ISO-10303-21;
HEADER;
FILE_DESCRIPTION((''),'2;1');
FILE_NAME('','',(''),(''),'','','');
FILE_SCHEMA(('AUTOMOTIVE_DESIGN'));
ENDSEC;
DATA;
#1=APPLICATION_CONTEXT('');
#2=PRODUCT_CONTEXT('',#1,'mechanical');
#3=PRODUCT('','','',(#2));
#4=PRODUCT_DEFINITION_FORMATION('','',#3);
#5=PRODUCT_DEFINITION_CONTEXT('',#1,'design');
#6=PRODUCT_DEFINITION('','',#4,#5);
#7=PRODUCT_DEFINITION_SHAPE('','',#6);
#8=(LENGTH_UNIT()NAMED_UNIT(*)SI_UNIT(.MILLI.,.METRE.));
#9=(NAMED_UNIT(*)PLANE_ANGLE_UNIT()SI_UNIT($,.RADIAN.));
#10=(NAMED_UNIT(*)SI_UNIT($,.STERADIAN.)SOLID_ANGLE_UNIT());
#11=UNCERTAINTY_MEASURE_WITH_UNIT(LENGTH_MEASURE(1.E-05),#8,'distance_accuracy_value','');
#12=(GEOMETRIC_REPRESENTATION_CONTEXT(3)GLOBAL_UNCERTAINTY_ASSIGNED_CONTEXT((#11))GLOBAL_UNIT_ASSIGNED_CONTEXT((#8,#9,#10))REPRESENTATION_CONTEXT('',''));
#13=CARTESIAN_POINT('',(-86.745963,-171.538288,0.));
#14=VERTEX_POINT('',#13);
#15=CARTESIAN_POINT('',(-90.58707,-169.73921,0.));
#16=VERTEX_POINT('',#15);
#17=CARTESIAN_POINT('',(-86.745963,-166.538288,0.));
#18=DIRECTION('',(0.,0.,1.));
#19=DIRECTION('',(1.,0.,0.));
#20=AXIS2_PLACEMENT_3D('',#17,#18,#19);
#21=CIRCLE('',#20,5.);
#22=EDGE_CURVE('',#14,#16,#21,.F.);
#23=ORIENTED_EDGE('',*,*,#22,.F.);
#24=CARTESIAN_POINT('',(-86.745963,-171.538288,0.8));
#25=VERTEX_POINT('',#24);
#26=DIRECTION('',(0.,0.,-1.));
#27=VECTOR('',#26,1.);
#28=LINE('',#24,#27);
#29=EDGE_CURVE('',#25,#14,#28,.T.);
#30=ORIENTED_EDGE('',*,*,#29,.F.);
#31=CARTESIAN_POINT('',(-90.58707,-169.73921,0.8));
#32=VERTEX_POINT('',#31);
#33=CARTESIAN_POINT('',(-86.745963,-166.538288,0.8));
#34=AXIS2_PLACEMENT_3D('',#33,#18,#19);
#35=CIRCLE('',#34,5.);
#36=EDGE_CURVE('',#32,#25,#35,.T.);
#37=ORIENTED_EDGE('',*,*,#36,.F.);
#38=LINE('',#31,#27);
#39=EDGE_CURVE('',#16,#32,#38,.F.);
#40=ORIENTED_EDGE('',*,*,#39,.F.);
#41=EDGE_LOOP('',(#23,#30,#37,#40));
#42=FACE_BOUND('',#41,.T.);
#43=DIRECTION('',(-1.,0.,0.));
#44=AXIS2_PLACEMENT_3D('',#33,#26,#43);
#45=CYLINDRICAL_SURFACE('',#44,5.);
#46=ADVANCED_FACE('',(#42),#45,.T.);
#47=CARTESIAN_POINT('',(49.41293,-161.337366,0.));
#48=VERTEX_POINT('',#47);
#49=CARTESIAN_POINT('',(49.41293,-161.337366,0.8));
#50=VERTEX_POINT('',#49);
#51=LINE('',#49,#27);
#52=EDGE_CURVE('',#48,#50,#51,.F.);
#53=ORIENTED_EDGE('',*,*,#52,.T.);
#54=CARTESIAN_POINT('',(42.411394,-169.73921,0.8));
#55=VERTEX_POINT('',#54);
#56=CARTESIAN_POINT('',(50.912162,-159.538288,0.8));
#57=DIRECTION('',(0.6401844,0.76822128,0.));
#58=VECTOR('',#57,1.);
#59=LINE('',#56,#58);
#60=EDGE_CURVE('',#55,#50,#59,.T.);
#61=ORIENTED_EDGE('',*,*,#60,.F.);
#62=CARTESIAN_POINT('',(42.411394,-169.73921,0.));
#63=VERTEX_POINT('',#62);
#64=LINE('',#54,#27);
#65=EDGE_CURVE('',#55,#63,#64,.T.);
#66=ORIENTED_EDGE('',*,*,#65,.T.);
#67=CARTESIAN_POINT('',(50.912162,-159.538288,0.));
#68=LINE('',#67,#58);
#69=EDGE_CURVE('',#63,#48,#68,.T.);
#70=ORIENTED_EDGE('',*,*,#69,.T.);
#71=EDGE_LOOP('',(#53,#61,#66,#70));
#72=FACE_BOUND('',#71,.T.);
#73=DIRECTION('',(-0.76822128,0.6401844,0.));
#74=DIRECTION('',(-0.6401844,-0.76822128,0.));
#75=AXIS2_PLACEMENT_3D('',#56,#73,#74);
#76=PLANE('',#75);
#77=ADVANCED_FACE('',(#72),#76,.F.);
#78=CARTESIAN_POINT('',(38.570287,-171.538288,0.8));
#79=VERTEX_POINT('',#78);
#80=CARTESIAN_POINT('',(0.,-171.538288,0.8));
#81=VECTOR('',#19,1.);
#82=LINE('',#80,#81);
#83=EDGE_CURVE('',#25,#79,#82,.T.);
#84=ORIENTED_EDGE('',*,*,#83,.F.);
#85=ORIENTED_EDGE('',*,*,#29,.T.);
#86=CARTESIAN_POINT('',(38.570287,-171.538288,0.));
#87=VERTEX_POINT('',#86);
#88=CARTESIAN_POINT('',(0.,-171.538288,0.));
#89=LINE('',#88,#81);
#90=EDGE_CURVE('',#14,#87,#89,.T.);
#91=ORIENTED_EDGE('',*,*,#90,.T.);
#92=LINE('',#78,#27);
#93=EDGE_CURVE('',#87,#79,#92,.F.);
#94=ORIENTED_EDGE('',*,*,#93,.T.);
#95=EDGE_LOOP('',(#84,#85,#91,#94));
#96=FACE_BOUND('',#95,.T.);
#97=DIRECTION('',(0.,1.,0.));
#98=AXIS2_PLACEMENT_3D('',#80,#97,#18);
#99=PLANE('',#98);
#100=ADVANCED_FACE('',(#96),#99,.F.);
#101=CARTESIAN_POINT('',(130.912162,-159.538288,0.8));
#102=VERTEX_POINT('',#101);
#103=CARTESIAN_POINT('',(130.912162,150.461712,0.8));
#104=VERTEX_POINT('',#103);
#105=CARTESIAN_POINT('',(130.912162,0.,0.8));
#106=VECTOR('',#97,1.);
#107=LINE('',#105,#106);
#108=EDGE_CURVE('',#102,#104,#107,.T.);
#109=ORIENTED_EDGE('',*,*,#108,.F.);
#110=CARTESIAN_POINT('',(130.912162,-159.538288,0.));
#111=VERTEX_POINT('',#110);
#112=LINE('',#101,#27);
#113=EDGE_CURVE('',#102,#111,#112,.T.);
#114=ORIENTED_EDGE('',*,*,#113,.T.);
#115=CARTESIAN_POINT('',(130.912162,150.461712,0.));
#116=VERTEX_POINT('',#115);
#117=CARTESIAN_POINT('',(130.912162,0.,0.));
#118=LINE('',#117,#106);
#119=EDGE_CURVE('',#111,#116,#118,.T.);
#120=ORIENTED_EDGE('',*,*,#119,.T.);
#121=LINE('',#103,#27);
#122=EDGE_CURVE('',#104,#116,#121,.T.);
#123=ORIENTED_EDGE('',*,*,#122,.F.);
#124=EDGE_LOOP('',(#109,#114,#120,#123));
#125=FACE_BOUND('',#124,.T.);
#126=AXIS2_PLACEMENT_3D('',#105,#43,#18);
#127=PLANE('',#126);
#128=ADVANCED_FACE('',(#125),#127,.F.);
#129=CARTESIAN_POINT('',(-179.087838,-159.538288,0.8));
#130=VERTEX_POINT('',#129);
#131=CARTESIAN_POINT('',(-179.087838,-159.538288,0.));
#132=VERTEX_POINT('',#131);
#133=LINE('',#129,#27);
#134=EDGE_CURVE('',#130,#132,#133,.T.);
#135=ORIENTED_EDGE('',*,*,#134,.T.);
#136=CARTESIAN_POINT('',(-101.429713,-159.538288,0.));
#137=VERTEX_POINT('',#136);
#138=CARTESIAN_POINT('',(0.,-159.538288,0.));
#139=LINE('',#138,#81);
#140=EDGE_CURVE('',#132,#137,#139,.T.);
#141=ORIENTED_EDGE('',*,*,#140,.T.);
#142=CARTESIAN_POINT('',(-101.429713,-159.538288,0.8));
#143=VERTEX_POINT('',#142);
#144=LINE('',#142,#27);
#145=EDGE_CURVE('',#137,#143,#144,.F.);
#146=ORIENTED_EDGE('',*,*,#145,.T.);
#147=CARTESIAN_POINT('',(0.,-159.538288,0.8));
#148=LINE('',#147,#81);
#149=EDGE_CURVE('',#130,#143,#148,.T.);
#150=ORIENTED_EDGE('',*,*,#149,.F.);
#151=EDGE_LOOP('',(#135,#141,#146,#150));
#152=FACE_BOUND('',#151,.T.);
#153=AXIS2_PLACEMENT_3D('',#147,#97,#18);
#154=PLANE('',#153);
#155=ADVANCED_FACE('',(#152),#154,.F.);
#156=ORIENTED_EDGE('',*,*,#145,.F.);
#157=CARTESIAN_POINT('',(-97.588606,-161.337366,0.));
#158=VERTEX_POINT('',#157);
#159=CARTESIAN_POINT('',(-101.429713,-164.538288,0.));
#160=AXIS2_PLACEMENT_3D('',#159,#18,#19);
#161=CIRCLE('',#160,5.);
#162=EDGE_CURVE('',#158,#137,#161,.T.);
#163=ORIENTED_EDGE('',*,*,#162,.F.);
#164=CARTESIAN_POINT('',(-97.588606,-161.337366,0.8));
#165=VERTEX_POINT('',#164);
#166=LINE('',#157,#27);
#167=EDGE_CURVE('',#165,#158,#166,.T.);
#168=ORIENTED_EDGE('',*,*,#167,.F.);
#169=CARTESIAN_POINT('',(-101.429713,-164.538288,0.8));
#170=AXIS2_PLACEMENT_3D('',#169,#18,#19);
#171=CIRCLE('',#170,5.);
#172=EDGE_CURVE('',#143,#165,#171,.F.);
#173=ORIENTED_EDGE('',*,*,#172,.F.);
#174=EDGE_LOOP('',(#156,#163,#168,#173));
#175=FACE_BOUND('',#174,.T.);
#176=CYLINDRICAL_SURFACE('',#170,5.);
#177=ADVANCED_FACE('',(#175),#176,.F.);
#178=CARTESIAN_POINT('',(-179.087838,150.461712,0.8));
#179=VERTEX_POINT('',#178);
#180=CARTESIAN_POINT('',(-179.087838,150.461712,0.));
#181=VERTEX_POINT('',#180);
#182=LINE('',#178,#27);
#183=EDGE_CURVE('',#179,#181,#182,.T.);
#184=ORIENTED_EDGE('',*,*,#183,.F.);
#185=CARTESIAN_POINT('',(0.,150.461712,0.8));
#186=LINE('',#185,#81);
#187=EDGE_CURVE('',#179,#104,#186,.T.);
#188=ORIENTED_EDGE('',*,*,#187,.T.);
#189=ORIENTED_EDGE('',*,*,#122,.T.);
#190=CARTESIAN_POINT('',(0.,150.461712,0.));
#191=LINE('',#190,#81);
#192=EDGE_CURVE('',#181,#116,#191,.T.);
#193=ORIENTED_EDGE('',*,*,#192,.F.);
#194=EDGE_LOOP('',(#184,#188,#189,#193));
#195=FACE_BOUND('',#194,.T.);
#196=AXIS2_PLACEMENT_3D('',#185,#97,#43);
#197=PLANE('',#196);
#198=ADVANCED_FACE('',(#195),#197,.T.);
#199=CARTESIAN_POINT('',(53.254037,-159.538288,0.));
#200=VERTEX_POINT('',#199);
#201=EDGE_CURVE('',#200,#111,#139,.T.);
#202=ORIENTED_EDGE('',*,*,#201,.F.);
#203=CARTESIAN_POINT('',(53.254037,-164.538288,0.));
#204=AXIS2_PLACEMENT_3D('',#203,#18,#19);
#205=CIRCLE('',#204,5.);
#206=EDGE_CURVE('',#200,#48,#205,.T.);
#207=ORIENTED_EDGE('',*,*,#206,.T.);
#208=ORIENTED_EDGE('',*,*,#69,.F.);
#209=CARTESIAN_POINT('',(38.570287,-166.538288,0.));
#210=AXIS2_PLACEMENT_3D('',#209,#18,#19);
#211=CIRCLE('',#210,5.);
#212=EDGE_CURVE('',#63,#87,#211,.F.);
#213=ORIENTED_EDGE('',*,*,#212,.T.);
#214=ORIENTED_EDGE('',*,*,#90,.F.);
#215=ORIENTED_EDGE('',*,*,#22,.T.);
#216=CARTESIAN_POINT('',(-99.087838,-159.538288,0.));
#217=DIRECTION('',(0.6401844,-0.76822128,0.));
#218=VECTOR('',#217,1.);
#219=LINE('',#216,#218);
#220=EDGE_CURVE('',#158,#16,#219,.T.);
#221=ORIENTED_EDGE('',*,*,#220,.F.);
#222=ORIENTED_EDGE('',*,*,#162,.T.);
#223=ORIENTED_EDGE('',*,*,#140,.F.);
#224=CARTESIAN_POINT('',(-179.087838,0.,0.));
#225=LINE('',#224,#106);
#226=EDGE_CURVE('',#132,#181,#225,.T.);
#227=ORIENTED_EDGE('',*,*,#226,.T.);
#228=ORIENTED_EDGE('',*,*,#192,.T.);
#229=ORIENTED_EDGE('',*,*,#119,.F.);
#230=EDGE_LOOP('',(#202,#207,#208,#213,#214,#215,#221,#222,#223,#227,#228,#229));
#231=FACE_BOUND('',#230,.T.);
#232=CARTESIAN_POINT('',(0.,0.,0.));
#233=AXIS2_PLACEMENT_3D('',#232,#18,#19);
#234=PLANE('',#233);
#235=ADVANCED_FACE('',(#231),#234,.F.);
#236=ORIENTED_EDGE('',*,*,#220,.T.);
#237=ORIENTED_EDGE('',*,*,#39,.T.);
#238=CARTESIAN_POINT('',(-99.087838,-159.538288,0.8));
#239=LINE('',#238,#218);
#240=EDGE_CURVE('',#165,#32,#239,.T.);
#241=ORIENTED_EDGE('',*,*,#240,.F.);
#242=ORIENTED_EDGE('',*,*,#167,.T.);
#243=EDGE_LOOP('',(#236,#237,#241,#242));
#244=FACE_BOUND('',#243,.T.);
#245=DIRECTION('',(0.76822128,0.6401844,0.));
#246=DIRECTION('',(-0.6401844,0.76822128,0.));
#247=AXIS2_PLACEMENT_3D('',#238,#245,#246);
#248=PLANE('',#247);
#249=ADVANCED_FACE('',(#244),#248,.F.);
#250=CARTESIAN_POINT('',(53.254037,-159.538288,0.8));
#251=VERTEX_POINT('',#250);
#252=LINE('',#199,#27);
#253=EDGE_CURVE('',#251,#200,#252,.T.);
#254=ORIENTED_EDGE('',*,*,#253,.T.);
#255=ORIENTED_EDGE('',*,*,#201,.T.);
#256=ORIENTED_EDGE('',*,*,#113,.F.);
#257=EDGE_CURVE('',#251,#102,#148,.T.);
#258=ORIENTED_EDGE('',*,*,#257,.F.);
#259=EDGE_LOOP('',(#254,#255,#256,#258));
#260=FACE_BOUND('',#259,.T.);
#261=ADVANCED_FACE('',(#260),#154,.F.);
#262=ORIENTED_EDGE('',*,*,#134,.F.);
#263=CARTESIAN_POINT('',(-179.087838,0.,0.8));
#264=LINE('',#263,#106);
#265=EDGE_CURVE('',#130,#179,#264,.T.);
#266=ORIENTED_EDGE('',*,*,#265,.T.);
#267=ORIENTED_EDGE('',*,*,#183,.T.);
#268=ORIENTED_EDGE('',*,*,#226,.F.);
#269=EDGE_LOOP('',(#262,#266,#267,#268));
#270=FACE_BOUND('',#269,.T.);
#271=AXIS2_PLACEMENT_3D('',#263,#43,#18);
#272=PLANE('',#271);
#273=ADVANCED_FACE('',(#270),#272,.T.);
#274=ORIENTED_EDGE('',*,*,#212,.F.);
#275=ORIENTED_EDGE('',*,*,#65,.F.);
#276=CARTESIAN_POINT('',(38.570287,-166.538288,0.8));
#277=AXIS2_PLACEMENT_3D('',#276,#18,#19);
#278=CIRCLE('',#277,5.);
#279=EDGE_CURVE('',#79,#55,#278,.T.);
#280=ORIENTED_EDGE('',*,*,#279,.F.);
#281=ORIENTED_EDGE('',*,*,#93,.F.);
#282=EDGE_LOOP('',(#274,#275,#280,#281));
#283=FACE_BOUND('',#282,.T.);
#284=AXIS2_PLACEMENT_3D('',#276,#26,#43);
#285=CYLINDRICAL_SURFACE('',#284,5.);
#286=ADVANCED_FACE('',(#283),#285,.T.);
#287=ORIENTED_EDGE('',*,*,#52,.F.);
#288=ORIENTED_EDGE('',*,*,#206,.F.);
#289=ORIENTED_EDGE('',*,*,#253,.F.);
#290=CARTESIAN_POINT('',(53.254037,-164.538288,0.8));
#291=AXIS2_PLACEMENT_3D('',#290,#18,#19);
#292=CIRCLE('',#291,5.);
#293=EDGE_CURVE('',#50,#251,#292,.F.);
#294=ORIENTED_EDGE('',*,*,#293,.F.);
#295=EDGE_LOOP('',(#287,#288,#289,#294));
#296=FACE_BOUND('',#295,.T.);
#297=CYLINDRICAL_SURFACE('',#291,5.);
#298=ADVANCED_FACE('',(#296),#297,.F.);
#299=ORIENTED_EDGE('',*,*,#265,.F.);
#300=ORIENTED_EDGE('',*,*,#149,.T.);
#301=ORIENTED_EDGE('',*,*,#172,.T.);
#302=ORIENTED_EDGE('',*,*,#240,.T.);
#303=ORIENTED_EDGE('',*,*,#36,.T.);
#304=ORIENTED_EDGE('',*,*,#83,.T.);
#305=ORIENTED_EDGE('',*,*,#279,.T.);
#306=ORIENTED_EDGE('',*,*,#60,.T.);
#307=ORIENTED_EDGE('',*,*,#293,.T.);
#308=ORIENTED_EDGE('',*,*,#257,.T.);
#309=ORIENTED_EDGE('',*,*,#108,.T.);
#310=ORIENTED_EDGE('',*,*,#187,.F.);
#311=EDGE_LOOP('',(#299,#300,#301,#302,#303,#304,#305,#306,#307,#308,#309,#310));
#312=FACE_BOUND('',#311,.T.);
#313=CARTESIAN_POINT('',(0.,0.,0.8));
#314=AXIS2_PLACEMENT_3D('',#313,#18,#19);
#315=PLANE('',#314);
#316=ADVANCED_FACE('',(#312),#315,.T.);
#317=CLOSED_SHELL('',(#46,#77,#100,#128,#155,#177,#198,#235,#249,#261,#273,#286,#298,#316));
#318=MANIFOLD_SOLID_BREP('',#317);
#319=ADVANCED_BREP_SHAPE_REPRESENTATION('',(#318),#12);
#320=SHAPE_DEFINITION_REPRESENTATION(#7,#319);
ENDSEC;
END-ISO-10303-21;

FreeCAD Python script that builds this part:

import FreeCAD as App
import Part
import Sketcher
Q = App.Units.Quantity


def edges_at(feature, points):
    """Names of the edges that pass closest to the given points."""
    edges = feature.Shape.Edges
    near = lambda p: min(range(len(edges)), key=lambda i: edges[i].distToShape(Part.Vertex(*p))[0])
    return sorted({f"Edge{near(p) + 1}" for p in points})


def add_polygon(sketch, points):
    """Adds a closed chain of lines whose ends are joined by coincident constraints."""
    first, n = sketch.GeometryCount, len(points)
    for a, b in zip(points, points[1:] + points[:1]):
        sketch.addGeometry(Part.LineSegment(App.Vector(*a, 0), App.Vector(*b, 0)), False)
    for i in range(n):
        sketch.addConstraint(Sketcher.Constraint("Coincident", first + i, 2, first + (i + 1) % n, 1))

doc = App.newDocument("Part")
params = doc.addObject("Spreadsheet::Sheet", "Params")
for row, (alias, value) in enumerate([
    ("sketch1_width", "80 mm"),
    ("sketch1_width2", "150 mm"),
    ("sketch1_height", "12 mm"),
    ("pad1_length", "0.8 mm"),
    ("sketch2_width", "10 mm"),
    ("sketch2_height", "12 mm"),
    ("pocket1_length", "0.8 mm"),
    ("fillet_radius", "5 mm"),
], start=1):
    params.set(f"A{row}", alias)
    params.set(f"B{row}", "=" + value)
    params.setAlias(f"B{row}", alias)

body = doc.addObject("PartDesign::Body", "Body")

sketch1 = body.newObject("Sketcher::SketchObject", "Sketch")
sketch1.AttachmentSupport = (doc.getObject("XY_Plane"), [""])
sketch1.MapMode = "FlatFace"
add_polygon(sketch1, [(-179, 150), (-179, -160), (-99, -160), (-99, -172), (51, -172), (51, -160), (131, -160), (131, 150)])
sketch1.addConstraint(Sketcher.Constraint("Vertical", 0))
sketch1.addConstraint(Sketcher.Constraint("Horizontal", 1))
sketch1.addConstraint(Sketcher.Constraint("Vertical", 2))
sketch1.addConstraint(Sketcher.Constraint("Horizontal", 3))
sketch1.addConstraint(Sketcher.Constraint("Vertical", 4))
sketch1.addConstraint(Sketcher.Constraint("Horizontal", 5))
sketch1.addConstraint(Sketcher.Constraint("Vertical", 6))
sketch1.addConstraint(Sketcher.Constraint("Horizontal", 7))
sketch1.addConstraint(Sketcher.Constraint("Horizontal", 1, 2, 4, 2))
sketch1.addConstraint(Sketcher.Constraint("Equal", 1, 5))
sketch1.addConstraint(Sketcher.Constraint("Equal", 7, 0))
sketch1.addConstraint(Sketcher.Constraint("DistanceX", 1, 1, 1, 2, Q("80 mm")))
sketch1.addConstraint(Sketcher.Constraint("DistanceX", 3, 1, 3, 2, Q("150 mm")))
sketch1.addConstraint(Sketcher.Constraint("DistanceY", 2, 2, 2, 1, Q("12 mm")))
sketch1.addConstraint(Sketcher.Constraint("DistanceY", 0, 2, -1, 1, Q("159.538288 mm")))
sketch1.addConstraint(Sketcher.Constraint("DistanceX", 0, 2, -1, 1, Q("179.087838 mm")))
sketch1.setExpression("Constraints[19]", "Params.sketch1_width")
sketch1.setExpression("Constraints[20]", "Params.sketch1_width2")
sketch1.setExpression("Constraints[21]", "Params.sketch1_height")
pad1 = body.newObject("PartDesign::Pad", "Pad")
pad1.Profile = sketch1
pad1.setExpression("Length", "Params.pad1_length")

sketch2 = body.newObject("Sketcher::SketchObject", "Sketch001")
sketch2.AttachmentSupport = (doc.getObject("XY_Plane"), [""])
sketch2.MapMode = "FlatFace"
add_polygon(sketch2, [(-99, -160), (-89, -172), (-99, -172)])
add_polygon(sketch2, [(41, -172), (51, -160), (51, -172)])
sketch2.addConstraint(Sketcher.Constraint("Horizontal", 1))
sketch2.addConstraint(Sketcher.Constraint("Vertical", 2))
sketch2.addConstraint(Sketcher.Constraint("Vertical", 4))
sketch2.addConstraint(Sketcher.Constraint("Horizontal", 5))
sketch2.addConstraint(Sketcher.Constraint("Horizontal", 2, 2, 3, 2))
sketch2.addConstraint(Sketcher.Constraint("Horizontal", 1, 2, 4, 2))
sketch2.addConstraint(Sketcher.Constraint("Equal", 1, 5))
sketch2.addConstraint(Sketcher.Constraint("DistanceX", 1, 2, 1, 1, Q("10 mm")))
sketch2.addConstraint(Sketcher.Constraint("DistanceY", 2, 1, 2, 2, Q("12 mm")))
sketch2.addConstraint(Sketcher.Constraint("DistanceX", 0, 2, 3, 2, Q("140 mm")))
sketch2.addConstraint(Sketcher.Constraint("DistanceY", 0, 2, -1, 1, Q("171.538288 mm")))
sketch2.addConstraint(Sketcher.Constraint("DistanceX", 0, 2, -1, 1, Q("89.087838 mm")))
sketch2.setExpression("Constraints[13]", "Params.sketch2_width")
sketch2.setExpression("Constraints[14]", "Params.sketch2_height")
pocket1 = body.newObject("PartDesign::Pocket", "Pocket")
pocket1.Profile = sketch2
pocket1.setExpression("Length", "Params.pocket1_length")
pocket1.Reversed = True
doc.recompute()

fillet = body.newObject("PartDesign::Fillet", "Fillet")
fillet.Base = (pocket1, edges_at(pocket1, [
    (50.912, -159.538, 0.4),
    (-99.088, -159.538, 0.4),
    (-89.088, -171.538, 0.4),
    (40.912, -171.538, 0.4),
]))
fillet.setExpression("Radius", "Params.fillet_radius")

doc.recompute()
